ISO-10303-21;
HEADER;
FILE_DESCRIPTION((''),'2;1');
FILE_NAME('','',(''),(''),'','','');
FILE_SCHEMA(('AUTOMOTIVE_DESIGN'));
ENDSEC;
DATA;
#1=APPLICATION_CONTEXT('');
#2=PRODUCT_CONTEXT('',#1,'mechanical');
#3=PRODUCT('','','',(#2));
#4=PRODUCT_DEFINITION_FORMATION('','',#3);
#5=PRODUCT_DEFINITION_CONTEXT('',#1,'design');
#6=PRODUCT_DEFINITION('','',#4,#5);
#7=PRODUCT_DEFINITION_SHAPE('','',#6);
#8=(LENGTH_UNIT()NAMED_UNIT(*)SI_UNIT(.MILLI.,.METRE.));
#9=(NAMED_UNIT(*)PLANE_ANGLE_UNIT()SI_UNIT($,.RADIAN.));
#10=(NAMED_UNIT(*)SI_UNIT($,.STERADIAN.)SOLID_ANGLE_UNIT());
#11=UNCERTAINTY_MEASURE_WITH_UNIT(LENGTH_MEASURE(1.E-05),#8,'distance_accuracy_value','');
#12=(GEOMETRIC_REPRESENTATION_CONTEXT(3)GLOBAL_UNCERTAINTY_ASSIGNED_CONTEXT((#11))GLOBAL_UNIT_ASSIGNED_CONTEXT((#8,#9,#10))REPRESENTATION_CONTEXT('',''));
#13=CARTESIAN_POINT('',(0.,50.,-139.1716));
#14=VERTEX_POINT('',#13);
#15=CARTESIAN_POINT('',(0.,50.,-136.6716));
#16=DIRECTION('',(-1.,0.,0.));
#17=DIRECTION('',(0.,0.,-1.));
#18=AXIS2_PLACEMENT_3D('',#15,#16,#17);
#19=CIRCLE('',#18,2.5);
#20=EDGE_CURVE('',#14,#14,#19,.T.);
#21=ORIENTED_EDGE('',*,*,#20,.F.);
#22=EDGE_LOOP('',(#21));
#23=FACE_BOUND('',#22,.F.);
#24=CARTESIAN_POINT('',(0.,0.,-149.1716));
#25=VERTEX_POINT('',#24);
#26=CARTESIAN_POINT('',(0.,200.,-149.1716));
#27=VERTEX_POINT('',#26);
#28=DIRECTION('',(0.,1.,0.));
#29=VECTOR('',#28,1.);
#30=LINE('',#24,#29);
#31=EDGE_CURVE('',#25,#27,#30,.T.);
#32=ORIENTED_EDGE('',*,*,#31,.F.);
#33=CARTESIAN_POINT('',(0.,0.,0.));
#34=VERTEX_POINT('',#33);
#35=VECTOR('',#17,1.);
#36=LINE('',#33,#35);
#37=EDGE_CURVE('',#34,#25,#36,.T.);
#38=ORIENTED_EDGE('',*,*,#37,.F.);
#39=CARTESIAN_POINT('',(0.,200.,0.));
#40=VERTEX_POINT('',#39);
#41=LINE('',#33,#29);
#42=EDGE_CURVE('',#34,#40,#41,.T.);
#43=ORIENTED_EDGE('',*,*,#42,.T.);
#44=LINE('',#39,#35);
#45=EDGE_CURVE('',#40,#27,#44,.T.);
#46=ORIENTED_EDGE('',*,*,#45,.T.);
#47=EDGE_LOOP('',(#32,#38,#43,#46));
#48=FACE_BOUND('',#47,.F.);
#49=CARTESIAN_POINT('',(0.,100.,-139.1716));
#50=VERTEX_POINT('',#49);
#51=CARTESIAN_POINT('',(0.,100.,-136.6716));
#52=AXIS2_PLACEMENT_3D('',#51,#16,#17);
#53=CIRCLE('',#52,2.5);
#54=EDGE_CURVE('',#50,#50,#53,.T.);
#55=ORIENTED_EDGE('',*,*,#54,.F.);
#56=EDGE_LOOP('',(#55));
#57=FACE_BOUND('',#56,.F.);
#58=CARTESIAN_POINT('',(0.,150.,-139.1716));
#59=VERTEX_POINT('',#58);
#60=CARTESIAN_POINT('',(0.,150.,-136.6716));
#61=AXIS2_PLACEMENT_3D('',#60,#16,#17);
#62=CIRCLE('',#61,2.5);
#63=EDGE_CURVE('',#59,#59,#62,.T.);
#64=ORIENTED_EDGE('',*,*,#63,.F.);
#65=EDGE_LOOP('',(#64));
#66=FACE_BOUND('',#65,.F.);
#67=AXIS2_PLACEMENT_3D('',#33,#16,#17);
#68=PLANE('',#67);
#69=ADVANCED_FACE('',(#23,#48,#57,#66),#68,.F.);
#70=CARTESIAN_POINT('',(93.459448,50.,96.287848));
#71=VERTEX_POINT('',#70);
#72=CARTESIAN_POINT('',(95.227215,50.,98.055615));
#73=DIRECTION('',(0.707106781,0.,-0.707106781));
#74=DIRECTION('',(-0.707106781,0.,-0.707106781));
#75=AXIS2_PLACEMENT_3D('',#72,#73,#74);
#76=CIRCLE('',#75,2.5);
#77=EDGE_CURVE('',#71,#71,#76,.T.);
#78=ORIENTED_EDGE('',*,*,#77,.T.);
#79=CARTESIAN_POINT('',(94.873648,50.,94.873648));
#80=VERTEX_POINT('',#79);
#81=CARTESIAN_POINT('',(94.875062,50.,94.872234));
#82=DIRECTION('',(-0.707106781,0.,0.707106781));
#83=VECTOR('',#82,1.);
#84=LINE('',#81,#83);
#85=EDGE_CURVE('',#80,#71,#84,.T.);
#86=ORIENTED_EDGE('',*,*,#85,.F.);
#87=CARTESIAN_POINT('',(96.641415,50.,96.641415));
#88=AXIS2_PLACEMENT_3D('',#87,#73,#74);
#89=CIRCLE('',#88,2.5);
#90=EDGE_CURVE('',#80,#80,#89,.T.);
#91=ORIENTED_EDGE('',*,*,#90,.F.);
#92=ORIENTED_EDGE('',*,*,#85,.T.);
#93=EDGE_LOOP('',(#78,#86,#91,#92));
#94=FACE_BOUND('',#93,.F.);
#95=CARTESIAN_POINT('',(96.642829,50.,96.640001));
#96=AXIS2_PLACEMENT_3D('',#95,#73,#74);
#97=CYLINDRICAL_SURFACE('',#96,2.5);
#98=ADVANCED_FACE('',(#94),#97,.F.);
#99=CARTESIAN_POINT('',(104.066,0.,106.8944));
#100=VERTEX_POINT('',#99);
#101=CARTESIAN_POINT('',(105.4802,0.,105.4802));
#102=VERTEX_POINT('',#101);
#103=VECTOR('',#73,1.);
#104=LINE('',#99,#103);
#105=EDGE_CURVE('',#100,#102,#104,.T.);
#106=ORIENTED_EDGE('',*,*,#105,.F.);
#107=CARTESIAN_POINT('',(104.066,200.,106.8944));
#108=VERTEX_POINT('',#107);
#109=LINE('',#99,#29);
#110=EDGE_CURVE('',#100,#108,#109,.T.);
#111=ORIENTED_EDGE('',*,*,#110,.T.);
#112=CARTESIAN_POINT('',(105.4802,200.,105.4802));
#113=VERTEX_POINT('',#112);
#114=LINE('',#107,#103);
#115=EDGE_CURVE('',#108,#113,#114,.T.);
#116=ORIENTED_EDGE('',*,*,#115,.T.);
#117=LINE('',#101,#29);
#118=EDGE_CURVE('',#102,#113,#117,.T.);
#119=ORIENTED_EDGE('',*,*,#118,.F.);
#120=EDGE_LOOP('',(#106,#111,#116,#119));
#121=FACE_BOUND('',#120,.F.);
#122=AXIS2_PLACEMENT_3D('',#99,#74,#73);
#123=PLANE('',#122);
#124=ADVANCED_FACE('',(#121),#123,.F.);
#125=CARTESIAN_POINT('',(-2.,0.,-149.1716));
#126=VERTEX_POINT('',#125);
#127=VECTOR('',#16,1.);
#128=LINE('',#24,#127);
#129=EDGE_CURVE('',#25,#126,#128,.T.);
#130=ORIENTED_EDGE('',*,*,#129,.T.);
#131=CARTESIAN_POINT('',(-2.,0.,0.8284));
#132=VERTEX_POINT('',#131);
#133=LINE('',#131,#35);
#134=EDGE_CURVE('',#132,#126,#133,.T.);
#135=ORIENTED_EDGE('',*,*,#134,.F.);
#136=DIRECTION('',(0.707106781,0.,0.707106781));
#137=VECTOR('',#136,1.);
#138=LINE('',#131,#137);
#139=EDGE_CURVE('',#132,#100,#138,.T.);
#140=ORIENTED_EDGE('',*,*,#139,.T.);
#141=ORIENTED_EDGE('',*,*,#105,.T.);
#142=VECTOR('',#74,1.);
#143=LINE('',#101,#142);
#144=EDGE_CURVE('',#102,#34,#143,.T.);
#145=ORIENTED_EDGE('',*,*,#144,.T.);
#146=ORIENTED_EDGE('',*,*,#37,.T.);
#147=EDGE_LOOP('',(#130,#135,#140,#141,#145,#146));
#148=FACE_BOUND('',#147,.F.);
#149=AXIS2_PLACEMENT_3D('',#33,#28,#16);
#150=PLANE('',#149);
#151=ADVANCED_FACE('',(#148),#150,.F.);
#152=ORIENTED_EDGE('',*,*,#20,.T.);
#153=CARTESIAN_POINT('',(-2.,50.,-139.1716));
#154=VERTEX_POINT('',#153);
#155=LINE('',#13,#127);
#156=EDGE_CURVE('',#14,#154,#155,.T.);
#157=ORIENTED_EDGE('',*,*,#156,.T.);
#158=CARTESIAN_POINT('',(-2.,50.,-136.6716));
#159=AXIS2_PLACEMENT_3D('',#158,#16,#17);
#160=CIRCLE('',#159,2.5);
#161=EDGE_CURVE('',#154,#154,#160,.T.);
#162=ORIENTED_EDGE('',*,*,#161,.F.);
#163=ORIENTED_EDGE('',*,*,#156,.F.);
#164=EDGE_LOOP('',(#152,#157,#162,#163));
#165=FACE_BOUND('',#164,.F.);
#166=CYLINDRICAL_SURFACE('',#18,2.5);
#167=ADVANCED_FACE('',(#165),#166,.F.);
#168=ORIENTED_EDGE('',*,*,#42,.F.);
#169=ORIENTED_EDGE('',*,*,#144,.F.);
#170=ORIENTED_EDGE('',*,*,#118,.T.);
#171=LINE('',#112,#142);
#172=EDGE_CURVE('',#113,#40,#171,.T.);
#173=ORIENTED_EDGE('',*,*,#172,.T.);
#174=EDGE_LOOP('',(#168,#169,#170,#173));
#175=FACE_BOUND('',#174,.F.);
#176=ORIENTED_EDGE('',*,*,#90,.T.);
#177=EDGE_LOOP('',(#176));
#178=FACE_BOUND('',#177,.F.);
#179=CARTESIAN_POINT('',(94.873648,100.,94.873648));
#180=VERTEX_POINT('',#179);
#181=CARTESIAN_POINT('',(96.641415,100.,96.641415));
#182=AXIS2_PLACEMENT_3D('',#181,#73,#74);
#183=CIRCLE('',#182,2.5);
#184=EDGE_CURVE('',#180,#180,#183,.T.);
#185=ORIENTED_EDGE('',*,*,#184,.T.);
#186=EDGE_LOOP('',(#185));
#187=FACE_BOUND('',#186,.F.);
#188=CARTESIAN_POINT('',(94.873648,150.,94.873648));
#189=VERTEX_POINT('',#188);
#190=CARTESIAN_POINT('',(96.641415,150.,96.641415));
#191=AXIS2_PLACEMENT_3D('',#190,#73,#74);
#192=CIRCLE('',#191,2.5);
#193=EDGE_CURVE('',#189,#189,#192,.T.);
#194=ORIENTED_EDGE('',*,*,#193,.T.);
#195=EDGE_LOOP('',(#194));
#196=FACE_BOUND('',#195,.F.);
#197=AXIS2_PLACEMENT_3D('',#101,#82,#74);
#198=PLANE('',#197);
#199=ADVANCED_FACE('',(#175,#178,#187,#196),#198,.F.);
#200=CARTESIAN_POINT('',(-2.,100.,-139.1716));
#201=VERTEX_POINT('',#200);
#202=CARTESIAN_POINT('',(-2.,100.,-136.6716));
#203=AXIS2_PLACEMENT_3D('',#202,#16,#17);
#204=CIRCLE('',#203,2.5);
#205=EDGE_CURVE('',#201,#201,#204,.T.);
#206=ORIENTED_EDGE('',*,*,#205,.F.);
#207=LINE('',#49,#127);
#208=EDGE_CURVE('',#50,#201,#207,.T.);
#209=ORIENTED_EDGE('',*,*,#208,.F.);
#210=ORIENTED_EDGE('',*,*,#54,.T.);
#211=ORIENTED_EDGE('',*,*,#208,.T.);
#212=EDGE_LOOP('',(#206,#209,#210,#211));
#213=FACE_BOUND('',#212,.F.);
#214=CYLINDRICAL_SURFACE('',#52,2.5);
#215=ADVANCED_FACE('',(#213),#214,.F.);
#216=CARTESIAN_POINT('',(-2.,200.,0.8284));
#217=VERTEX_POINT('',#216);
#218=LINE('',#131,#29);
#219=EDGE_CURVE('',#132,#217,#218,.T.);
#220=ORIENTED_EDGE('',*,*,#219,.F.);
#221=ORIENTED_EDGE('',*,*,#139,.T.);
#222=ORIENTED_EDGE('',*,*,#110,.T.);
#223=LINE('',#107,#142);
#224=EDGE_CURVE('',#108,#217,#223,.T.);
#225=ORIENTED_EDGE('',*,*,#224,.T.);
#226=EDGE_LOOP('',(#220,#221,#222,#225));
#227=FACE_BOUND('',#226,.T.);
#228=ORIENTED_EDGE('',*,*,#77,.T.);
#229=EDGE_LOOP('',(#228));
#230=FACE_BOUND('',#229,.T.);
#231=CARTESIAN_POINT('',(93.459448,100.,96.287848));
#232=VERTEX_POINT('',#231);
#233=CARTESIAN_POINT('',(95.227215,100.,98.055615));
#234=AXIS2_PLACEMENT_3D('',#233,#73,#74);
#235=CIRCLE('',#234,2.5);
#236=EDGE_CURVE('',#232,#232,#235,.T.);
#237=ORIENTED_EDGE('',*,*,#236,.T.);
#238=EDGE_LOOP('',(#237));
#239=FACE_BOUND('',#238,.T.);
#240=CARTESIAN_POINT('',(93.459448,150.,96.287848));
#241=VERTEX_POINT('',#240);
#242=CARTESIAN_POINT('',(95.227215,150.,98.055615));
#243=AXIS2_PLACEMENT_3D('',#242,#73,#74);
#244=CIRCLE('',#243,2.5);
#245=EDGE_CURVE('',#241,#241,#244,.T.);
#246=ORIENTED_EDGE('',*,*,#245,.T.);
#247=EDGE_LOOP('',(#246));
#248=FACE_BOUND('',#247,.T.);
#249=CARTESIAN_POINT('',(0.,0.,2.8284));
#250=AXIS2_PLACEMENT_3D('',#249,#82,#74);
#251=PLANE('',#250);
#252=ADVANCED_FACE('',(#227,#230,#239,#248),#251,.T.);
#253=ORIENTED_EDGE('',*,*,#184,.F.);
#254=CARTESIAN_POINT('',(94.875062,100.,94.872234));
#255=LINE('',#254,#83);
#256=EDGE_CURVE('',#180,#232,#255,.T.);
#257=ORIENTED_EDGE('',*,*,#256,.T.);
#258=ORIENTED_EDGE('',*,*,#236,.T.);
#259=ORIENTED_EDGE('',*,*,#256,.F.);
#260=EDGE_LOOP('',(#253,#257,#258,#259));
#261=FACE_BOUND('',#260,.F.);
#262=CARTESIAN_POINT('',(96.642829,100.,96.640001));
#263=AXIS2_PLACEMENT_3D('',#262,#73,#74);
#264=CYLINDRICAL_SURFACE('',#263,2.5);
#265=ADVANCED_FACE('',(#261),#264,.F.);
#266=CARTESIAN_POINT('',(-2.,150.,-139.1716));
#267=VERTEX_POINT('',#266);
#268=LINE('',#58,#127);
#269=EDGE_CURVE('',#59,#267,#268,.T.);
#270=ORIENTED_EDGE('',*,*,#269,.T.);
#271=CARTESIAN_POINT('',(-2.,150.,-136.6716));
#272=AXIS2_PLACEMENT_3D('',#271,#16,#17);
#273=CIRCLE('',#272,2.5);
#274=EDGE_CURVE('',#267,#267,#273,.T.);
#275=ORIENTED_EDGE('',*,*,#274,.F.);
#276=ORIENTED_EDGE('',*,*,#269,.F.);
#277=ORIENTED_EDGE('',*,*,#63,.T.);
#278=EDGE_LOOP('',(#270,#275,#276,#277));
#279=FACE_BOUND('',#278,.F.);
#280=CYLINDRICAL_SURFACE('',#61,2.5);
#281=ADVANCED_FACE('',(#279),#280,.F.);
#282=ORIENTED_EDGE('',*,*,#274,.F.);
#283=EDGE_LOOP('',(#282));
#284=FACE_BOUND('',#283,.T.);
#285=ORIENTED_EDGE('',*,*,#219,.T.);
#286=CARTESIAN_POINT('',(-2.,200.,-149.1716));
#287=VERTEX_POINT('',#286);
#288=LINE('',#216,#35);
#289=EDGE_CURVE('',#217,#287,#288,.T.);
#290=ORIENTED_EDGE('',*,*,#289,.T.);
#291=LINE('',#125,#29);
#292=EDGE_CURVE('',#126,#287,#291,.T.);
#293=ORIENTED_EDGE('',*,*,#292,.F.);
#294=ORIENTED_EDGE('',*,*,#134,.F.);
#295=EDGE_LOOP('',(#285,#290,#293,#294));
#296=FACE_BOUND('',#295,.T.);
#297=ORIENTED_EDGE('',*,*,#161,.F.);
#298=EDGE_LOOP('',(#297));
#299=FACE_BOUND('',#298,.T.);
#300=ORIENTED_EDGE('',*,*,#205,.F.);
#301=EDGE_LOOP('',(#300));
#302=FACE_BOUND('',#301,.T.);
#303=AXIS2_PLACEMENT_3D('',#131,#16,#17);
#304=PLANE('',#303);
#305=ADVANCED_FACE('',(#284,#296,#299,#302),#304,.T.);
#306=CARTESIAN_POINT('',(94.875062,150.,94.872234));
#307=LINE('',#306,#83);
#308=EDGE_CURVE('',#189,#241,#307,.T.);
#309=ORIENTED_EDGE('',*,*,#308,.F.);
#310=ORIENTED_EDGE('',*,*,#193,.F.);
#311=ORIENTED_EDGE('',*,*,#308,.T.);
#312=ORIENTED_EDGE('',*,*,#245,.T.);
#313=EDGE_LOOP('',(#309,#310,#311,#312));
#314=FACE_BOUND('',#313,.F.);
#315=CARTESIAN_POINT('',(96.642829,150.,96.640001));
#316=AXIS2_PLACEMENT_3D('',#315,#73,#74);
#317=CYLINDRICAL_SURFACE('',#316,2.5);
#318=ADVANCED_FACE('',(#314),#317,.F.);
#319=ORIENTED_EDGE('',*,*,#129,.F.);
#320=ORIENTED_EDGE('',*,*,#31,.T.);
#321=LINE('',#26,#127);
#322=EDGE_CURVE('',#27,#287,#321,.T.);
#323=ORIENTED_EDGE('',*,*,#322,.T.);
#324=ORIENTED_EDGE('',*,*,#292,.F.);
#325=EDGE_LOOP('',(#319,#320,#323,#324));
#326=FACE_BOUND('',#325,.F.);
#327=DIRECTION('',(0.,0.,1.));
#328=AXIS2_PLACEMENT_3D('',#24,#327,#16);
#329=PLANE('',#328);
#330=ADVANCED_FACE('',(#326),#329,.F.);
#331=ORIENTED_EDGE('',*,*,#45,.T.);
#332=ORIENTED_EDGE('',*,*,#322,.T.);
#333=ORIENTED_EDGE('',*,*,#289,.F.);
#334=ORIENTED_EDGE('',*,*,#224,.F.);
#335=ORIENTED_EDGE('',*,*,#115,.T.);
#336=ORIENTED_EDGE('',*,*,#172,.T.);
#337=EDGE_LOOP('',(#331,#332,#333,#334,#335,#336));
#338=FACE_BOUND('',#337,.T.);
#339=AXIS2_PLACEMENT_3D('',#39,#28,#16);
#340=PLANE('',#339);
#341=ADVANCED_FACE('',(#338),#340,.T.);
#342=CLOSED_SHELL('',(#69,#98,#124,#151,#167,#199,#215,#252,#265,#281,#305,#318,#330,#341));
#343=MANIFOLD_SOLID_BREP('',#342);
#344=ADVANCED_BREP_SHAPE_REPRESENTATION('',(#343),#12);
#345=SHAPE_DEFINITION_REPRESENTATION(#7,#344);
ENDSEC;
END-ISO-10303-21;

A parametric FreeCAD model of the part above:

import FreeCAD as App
import Part
import Sketcher

V = App.Vector
Q = App.Units.Quantity


def add_polygon(sketch, points):
    """Adds a closed chain of lines whose ends are joined by coincident constraints."""
    first, n = sketch.GeometryCount, len(points)
    for a, b in zip(points, points[1:] + points[:1]):
        sketch.addGeometry(Part.LineSegment(App.Vector(*a, 0), App.Vector(*b, 0)), False)
    for i in range(n):
        sketch.addConstraint(Sketcher.Constraint("Coincident", first + i, 2, first + (i + 1) % n, 1))

doc = App.newDocument("Part")
params = doc.addObject("Spreadsheet::Sheet", "Params")
for row, (alias, value) in enumerate([
    ("sketch1_width", "2 mm"),
    ("sketch1_height", "150 mm"),
    ("sketch1_length", "150 mm"),
    ("sketch1_length2", "2 mm"),
    ("pad1_length", "200 mm"),
    ("sketch2_diameter", "5 mm"),
    ("pocket1_length", "3 mm"),
    ("sketch3_diameter", "5 mm"),
    ("hole_diameter", "5 mm"),
], start=1):
    params.set(f"A{row}", alias)
    params.set(f"B{row}", "=" + value)
    params.setAlias(f"B{row}", alias)

body = doc.addObject("PartDesign::Body", "Body")

# Sketch on XZ plane
sketch1 = doc.addObject("Sketcher::SketchObject", "Sketch")
body.addObject(sketch1)
sketch1.AttachmentSupport = (doc.XZ_Plane, [""])
sketch1.MapMode = "FlatFace"
add_polygon(sketch1, [(-2, 0.8), (104.1, 106.9), (105.5, 105.5), (0, 0), (0, -149.2), (-2, -149.2)])  # lines 0-5
sketch1.addConstraint([
    Sketcher.Constraint("Vertical", 3),
    Sketcher.Constraint("Horizontal", 4),
    Sketcher.Constraint("Vertical", 5),
    Sketcher.Constraint("Coincident", 2, 2, -1, 1),
    Sketcher.Constraint("Perpendicular", 0, 1),
    Sketcher.Constraint("Perpendicular", 1, 2),
    Sketcher.Constraint("DistanceX", 4, 2, 4, 1, 2.0),
    Sketcher.Constraint("DistanceY", 5, 1, 5, 2, 150.0),
    Sketcher.Constraint("Angle", 2, Q("-135 deg")),
    Sketcher.Constraint("Distance", 0, 150.0),
    Sketcher.Constraint("Distance", 1, 2.0),
])
sketch1.setExpression("Constraints[12]", "Params.sketch1_width")
sketch1.setExpression("Constraints[13]", "Params.sketch1_height")
sketch1.setExpression("Constraints[15]", "Params.sketch1_length")
sketch1.setExpression("Constraints[16]", "Params.sketch1_length2")
pad1 = doc.addObject("PartDesign::Pad", "Pad")
body.addObject(pad1)
pad1.Profile = sketch1
pad1.setExpression("Length", "Params.pad1_length")
pad1.Reversed = True

# Sketch on an angled plane
sketch2 = doc.addObject("Sketcher::SketchObject", "Sketch001")
body.addObject(sketch2)
sketch2.Placement = App.Placement(V(0, 0, 0), App.Rotation(V(-0.707106781, 0, -0.707106781), V(0, 0.999999999, 0), V(0.707106781, 0, -0.707106781), "ZXY"))
sketch2.addGeometry([
    Part.Circle(V(-136.7, 50, 0), V(0, 0, 1), 2.5),
    Part.Circle(V(-136.7, 100, 0), V(0, 0, 1), 2.5),
    Part.Circle(V(-136.7, 150, 0), V(0, 0, 1), 2.5),
], False)
sketch2.addConstraint([
    Sketcher.Constraint("Equal", 0, 1),
    Sketcher.Constraint("Equal", 1, 2),
    Sketcher.Constraint("Vertical", 0, 3, 1, 3),
    Sketcher.Constraint("Vertical", 1, 3, 2, 3),
    Sketcher.Constraint("Diameter", 0, 5.0),
    Sketcher.Constraint("DistanceY", -1, 1, 0, 3, 50.0),
    Sketcher.Constraint("DistanceY", 0, 3, 1, 3, 50.0),
    Sketcher.Constraint("DistanceY", 1, 3, 2, 3, 50.0),
    Sketcher.Constraint("DistanceX", 0, 3, -1, 1, 136.6716),
])
sketch2.setExpression("Constraints[4]", "Params.sketch2_diameter")
pocket1 = doc.addObject("PartDesign::Pocket", "Pocket")
body.addObject(pocket1)
pocket1.Profile = sketch2
pocket1.setExpression("Length", "Params.pocket1_length")

# Sketch on YZ plane
sketch3 = doc.addObject("Sketcher::SketchObject", "Sketch002")
body.addObject(sketch3)
sketch3.AttachmentSupport = (doc.YZ_Plane, [""])
sketch3.MapMode = "FlatFace"
sketch3.addGeometry([
    Part.Circle(V(150, -136.7, 0), V(0, 0, 1), 2.5),
    Part.Circle(V(100, -136.7, 0), V(0, 0, 1), 2.5),
    Part.Circle(V(50, -136.7, 0), V(0, 0, 1), 2.5),
], False)
sketch3.addConstraint([
    Sketcher.Constraint("Equal", 0, 1),
    Sketcher.Constraint("Equal", 1, 2),
    Sketcher.Constraint("Horizontal", 0, 3, 1, 3),
    Sketcher.Constraint("Horizontal", 1, 3, 2, 3),
    Sketcher.Constraint("Diameter", 0, 5.0),
    Sketcher.Constraint("DistanceX", -1, 1, 0, 3, 150.0),
    Sketcher.Constraint("DistanceX", -1, 1, 1, 3, 100.0),
    Sketcher.Constraint("DistanceX", -1, 1, 2, 3, 50.0),
    Sketcher.Constraint("DistanceY", 0, 3, -1, 1, 136.6716),
])
sketch3.setExpression("Constraints[4]", "Params.sketch3_diameter")
doc.recompute()
hole = doc.addObject("PartDesign::Hole", "Hole")
body.addObject(hole)
hole.Profile = sketch3
hole.ThreadType = "None"
hole.setExpression("Diameter", "Params.hole_diameter")
hole.DepthType = "ThroughAll"

doc.recompute()
